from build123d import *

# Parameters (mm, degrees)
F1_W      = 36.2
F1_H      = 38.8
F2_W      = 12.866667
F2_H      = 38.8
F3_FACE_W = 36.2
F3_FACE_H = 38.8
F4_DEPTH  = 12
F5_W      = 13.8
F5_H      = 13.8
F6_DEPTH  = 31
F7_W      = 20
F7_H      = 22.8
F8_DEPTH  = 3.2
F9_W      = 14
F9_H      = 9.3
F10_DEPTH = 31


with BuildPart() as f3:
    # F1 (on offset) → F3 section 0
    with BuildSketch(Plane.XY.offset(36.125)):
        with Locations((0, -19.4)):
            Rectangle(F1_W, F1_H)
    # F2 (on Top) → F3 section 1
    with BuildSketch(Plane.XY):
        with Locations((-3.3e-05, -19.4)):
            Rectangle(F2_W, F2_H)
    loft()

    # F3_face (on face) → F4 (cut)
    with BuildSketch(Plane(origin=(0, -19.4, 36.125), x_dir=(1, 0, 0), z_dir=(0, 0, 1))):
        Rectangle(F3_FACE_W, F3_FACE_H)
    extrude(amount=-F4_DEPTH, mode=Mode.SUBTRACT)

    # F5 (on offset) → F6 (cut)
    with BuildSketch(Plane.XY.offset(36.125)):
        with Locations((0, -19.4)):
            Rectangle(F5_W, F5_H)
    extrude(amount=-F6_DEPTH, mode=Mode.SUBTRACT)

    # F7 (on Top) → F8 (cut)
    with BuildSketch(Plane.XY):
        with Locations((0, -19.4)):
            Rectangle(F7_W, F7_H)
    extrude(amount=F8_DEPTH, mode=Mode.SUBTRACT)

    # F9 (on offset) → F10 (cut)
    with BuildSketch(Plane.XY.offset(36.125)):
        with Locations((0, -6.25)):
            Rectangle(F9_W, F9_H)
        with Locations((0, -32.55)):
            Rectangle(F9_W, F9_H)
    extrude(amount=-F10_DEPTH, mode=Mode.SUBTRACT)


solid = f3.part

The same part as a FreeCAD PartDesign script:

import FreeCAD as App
import Part
import Sketcher
Q = App.Units.Quantity


def add_polygon(sketch, points):
    """Adds a closed chain of lines whose ends are joined by coincident constraints."""
    first, n = sketch.GeometryCount, len(points)
    for a, b in zip(points, points[1:] + points[:1]):
        sketch.addGeometry(Part.LineSegment(App.Vector(*a, 0), App.Vector(*b, 0)), False)
    for i in range(n):
        sketch.addConstraint(Sketcher.Constraint("Coincident", first + i, 2, first + (i + 1) % n, 1))

doc = App.newDocument("Part")
body = doc.addObject("PartDesign::Body", "Body")

sketch1 = body.newObject("Sketcher::SketchObject", "Sketch")
sketch1.AttachmentSupport = (doc.getObject("XY_Plane"), [""])
sketch1.MapMode = "FlatFace"
sketch1.AttachmentOffset = App.Placement(App.Vector(0, 0, 36.125), App.Rotation())
add_polygon(sketch1, [(-18, 0), (-18, -39), (18, -39), (18, 0)])
sketch1.addConstraint([
    Sketcher.Constraint("Vertical", 0),
    Sketcher.Constraint("Horizontal", 1),
    Sketcher.Constraint("Vertical", 2),
    Sketcher.Constraint("Horizontal", 3),
    Sketcher.Constraint("Symmetric", 2, 2, 3, 2, -1, 1),
    Sketcher.Constraint("DistanceX", 1, 1, 1, 2, Q("36.2 mm")),
    Sketcher.Constraint("DistanceY", 0, 2, 0, 1, Q("38.8 mm")),
])

sketch2 = body.newObject("Sketcher::SketchObject", "Sketch001")
sketch2.AttachmentSupport = (doc.getObject("XY_Plane"), [""])
sketch2.MapMode = "FlatFace"
add_polygon(sketch2, [(-6, 0), (-6, -39), (6, -39), (6, 0)])
sketch2.addConstraint([
    Sketcher.Constraint("Vertical", 0),
    Sketcher.Constraint("Horizontal", 1),
    Sketcher.Constraint("Vertical", 2),
    Sketcher.Constraint("Horizontal", 3),
    Sketcher.Constraint("PointOnObject", 2, 2, -1),
    Sketcher.Constraint("DistanceY", 0, 2, 0, 1, Q("38.8 mm")),
    Sketcher.Constraint("DistanceX", -1, 1, 1, 2, Q("6.4333 mm")),
    Sketcher.Constraint("DistanceX", 1, 1, 1, 2, Q("12.866667 mm")),
])

additiveloft = body.newObject("PartDesign::AdditiveLoft", "AdditiveLoft")
additiveloft.Profile = sketch1
additiveloft.Sections = [sketch2]

sketch3 = body.newObject("Sketcher::SketchObject", "Sketch002")
sketch3.AttachmentSupport = (doc.getObject("XY_Plane"), [""])
sketch3.MapMode = "FlatFace"
sketch3.AttachmentOffset = App.Placement(App.Vector(0, 0, 36.125), App.Rotation())
add_polygon(sketch3, [(-18, 0), (-18, -39), (18, -39), (18, 0)])
sketch3.addConstraint([
    Sketcher.Constraint("Vertical", 0),
    Sketcher.Constraint("Horizontal", 1),
    Sketcher.Constraint("Vertical", 2),
    Sketcher.Constraint("Horizontal", 3),
    Sketcher.Constraint("Symmetric", 2, 2, 3, 2, -1, 1),
    Sketcher.Constraint("DistanceX", 1, 1, 1, 2, Q("36.2 mm")),
    Sketcher.Constraint("DistanceY", 0, 2, 0, 1, Q("38.8 mm")),
])
pocket1 = body.newObject("PartDesign::Pocket", "Pocket")
pocket1.Profile = sketch3
pocket1.Length = 12

sketch4 = body.newObject("Sketcher::SketchObject", "Sketch003")
sketch4.AttachmentSupport = (doc.getObject("XY_Plane"), [""])
sketch4.MapMode = "FlatFace"
sketch4.AttachmentOffset = App.Placement(App.Vector(0, 0, 36.125), App.Rotation())
add_polygon(sketch4, [(-7, -12), (-7, -26), (7, -26), (7, -12)])
sketch4.addConstraint([
    Sketcher.Constraint("Vertical", 0),
    Sketcher.Constraint("Horizontal", 1),
    Sketcher.Constraint("Vertical", 2),
    Sketcher.Constraint("Horizontal", 3),
    Sketcher.Constraint("Equal", 3, 0),
    Sketcher.Constraint("DistanceX", 1, 1, 1, 2, Q("13.8 mm")),
    Sketcher.Constraint("DistanceX", 0, 2, -1, 1, Q("6.9 mm")),
    Sketcher.Constraint("DistanceY", 0, 2, -1, 1, Q("26.3 mm")),
])
pocket2 = body.newObject("PartDesign::Pocket", "Pocket001")
pocket2.Profile = sketch4
pocket2.Length = 31

sketch5 = body.newObject("Sketcher::SketchObject", "Sketch004")
sketch5.AttachmentSupport = (doc.getObject("XY_Plane"), [""])
sketch5.MapMode = "FlatFace"
add_polygon(sketch5, [(-10, -8), (-10, -31), (10, -31), (10, -8)])
sketch5.addConstraint([
    Sketcher.Constraint("Vertical", 0),
    Sketcher.Constraint("Horizontal", 1),
    Sketcher.Constraint("Vertical", 2),
    Sketcher.Constraint("Horizontal", 3),
    Sketcher.Constraint("DistanceX", 1, 1, 1, 2, Q("20 mm")),
    Sketcher.Constraint("DistanceY", 0, 2, 0, 1, Q("22.8 mm")),
    Sketcher.Constraint("DistanceX", 0, 2, -1, 1, Q("10 mm")),
    Sketcher.Constraint("DistanceY", 2, 2, -1, 1, Q("8 mm")),
])
pocket3 = body.newObject("PartDesign::Pocket", "Pocket002")
pocket3.Profile = sketch5
pocket3.Length = 3.2
pocket3.Reversed = True

sketch6 = body.newObject("Sketcher::SketchObject", "Sketch005")
sketch6.AttachmentSupport = (doc.getObject("XY_Plane"), [""])
sketch6.MapMode = "FlatFace"
sketch6.AttachmentOffset = App.Placement(App.Vector(0, 0, 36.125), App.Rotation())
add_polygon(sketch6, [(-7, -2), (-7, -11), (7, -11), (7, -2)])
add_polygon(sketch6, [(-7, -28), (-7, -37), (7, -37), (7, -28)])
sketch6.addConstraint([
    Sketcher.Constraint("Vertical", 0),
    Sketcher.Constraint("Horizontal", 1),
    Sketcher.Constraint("Vertical", 2),
    Sketcher.Constraint("Horizontal", 3),
    Sketcher.Constraint("Vertical", 4),
    Sketcher.Constraint("Horizontal", 5),
    Sketcher.Constraint("Vertical", 6),
    Sketcher.Constraint("Horizontal", 7),
    Sketcher.Constraint("Vertical", 3, 2, 4, 2),
    Sketcher.Constraint("Vertical", 2, 2, 5, 2),
    Sketcher.Constraint("Equal", 2, 4),
    Sketcher.Constraint("DistanceX", 1, 1, 1, 2, Q("14 mm")),
    Sketcher.Constraint("DistanceY", 0, 2, 0, 1, Q("9.3 mm")),
    Sketcher.Constraint("DistanceX", 0, 2, -1, 1, Q("7 mm")),
    Sketcher.Constraint("DistanceY", 6, 2, 1, 2, Q("17 mm")),
    Sketcher.Constraint("DistanceY", 0, 2, -1, 1, Q("10.9 mm")),
])
pocket4 = body.newObject("PartDesign::Pocket", "Pocket003")
pocket4.Profile = sketch6
pocket4.Length = 31

doc.recompute()
